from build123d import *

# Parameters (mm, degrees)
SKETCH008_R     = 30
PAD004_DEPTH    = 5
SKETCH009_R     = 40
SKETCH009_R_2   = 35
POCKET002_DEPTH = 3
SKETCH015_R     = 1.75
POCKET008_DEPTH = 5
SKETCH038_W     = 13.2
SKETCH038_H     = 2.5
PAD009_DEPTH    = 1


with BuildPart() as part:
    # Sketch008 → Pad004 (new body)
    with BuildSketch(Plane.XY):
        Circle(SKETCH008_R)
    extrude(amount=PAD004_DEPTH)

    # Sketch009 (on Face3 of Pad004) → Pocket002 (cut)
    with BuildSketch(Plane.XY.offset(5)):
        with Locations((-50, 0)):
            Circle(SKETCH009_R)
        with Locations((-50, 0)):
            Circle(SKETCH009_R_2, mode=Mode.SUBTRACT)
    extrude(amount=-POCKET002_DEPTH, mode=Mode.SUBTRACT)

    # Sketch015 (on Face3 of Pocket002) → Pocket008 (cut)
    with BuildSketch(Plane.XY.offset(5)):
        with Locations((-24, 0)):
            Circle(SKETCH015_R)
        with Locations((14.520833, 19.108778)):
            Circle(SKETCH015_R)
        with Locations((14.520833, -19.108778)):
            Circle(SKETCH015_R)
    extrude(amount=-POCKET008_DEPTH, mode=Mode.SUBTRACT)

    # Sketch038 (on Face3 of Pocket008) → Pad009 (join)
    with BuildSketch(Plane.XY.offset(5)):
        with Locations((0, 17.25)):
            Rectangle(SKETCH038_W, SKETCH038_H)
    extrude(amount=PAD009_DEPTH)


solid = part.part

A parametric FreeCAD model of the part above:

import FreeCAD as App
import Part
import Sketcher
Q = App.Units.Quantity

doc = App.newDocument("Part")
params = doc.addObject("Spreadsheet::Sheet", "Params")
for row, (alias, value) in enumerate([
    ("sketch1_diameter", "60 mm"),
    ("pad1_length", "5 mm"),
    ("sketch2_diameter", "80 mm"),
    ("sketch2_diameter2", "70 mm"),
    ("pocket1_length", "3 mm"),
    ("sketch3_diameter", "3.5 mm"),
    ("pocket2_length", "5 mm"),
    ("sketch4_width", "13.2 mm"),
    ("sketch4_height", "2.5 mm"),
    ("pad2_length", "1 mm"),
], start=1):
    params.set(f"A{row}", alias)
    params.set(f"B{row}", "=" + value)
    params.setAlias(f"B{row}", alias)

body = doc.addObject("PartDesign::Body", "Body")

# Sketch on XY plane
sketch1 = body.newObject("Sketcher::SketchObject", "Sketch")
sketch1.AttachmentSupport = (doc.getObject("XY_Plane"), [""])
sketch1.MapMode = "FlatFace"
sketch1.addGeometry(Part.Circle(App.Vector(0, 0, 0), App.Vector(0, 0, 1), 30), False)
sketch1.addConstraint([
    Sketcher.Constraint("Coincident", 0, 3, -1, 1),
    Sketcher.Constraint("Diameter", 0, Q("60 mm")),
])
sketch1.setExpression("Constraints[1]", "Params.sketch1_diameter")
pad1 = body.newObject("PartDesign::Pad", "Pad")
pad1.Profile = sketch1
pad1.setExpression("Length", "Params.pad1_length")

# Sketch on XY plane
sketch2 = body.newObject("Sketcher::SketchObject", "Sketch001")
sketch2.AttachmentSupport = (doc.getObject("XY_Plane"), [""])
sketch2.MapMode = "FlatFace"
sketch2.AttachmentOffset = App.Placement(App.Vector(0, 0, 5), App.Rotation())
sketch2.addGeometry([
    Part.Circle(App.Vector(-50, 0, 0), App.Vector(0, 0, 1), 40),
    Part.Circle(App.Vector(-50, 0, 0), App.Vector(0, 0, 1), 35),
], False)
sketch2.addConstraint([
    Sketcher.Constraint("Coincident", 1, 3, 0, 3),
    Sketcher.Constraint("PointOnObject", 0, 3, -1),
    Sketcher.Constraint("Diameter", 0, Q("80 mm")),
    Sketcher.Constraint("Diameter", 1, Q("70 mm")),
    Sketcher.Constraint("DistanceX", 0, 3, -1, 1, Q("50 mm")),
])
sketch2.setExpression("Constraints[2]", "Params.sketch2_diameter")
sketch2.setExpression("Constraints[3]", "Params.sketch2_diameter2")
pocket1 = body.newObject("PartDesign::Pocket", "Pocket")
pocket1.Profile = sketch2
pocket1.setExpression("Length", "Params.pocket1_length")

# Sketch on XY plane
sketch3 = body.newObject("Sketcher::SketchObject", "Sketch002")
sketch3.AttachmentSupport = (doc.getObject("XY_Plane"), [""])
sketch3.MapMode = "FlatFace"
sketch3.AttachmentOffset = App.Placement(App.Vector(0, 0, 5), App.Rotation())
sketch3.addGeometry([
    Part.Circle(App.Vector(-24, 0, 0), App.Vector(0, 0, 1), 1.8),
    Part.Circle(App.Vector(14.5, 19.1, 0), App.Vector(0, 0, 1), 1.8),
    Part.Circle(App.Vector(14.5, -19.1, 0), App.Vector(0, 0, 1), 1.8),
], False)
sketch3.addConstraint([
    Sketcher.Constraint("Equal", 0, 1),
    Sketcher.Constraint("Equal", 1, 2),
    Sketcher.Constraint("Symmetric", 1, 3, 2, 3, -1),
    Sketcher.Constraint("PointOnObject", 0, 3, -1),
    Sketcher.Constraint("Diameter", 0, Q("3.5 mm")),
    Sketcher.Constraint("DistanceX", 0, 3, -1, 1, Q("24 mm")),
    Sketcher.Constraint("DistanceY", -1, 1, 1, 3, Q("19.108778 mm")),
    Sketcher.Constraint("DistanceX", -1, 1, 1, 3, Q("14.520833 mm")),
])
sketch3.setExpression("Constraints[4]", "Params.sketch3_diameter")
pocket2 = body.newObject("PartDesign::Pocket", "Pocket001")
pocket2.Profile = sketch3
pocket2.setExpression("Length", "Params.pocket2_length")

# Sketch on XY plane
sketch4 = body.newObject("Sketcher::SketchObject", "Sketch003")
sketch4.AttachmentSupport = (doc.getObject("XY_Plane"), [""])
sketch4.MapMode = "FlatFace"
sketch4.AttachmentOffset = App.Placement(App.Vector(0, 0, 5), App.Rotation())
sketch4.addGeometry([
    Part.LineSegment(App.Vector(-6.6, 18.5, 0), App.Vector(-6.6, 16, 0)),
    Part.LineSegment(App.Vector(-6.6, 16, 0), App.Vector(6.6, 16, 0)),
    Part.LineSegment(App.Vector(6.6, 16, 0), App.Vector(6.6, 18.5, 0)),
    Part.LineSegment(App.Vector(6.6, 18.5, 0), App.Vector(-6.6, 18.5, 0)),
], False)
sketch4.addConstraint([
    Sketcher.Constraint("Coincident", 0, 2, 1, 1),
    Sketcher.Constraint("Coincident", 1, 2, 2, 1),
    Sketcher.Constraint("Coincident", 2, 2, 3, 1),
    Sketcher.Constraint("Coincident", 3, 2, 0, 1),
    Sketcher.Constraint("Vertical", 0),
    Sketcher.Constraint("Horizontal", 1),
    Sketcher.Constraint("Vertical", 2),
    Sketcher.Constraint("Horizontal", 3),
    Sketcher.Constraint("DistanceX", 1, 1, 1, 2, Q("13.2 mm")),
    Sketcher.Constraint("DistanceY", 0, 2, 0, 1, Q("2.5 mm")),
    Sketcher.Constraint("DistanceY", -1, 1, 0, 2, Q("16 mm")),
    Sketcher.Constraint("DistanceX", 0, 2, -1, 1, Q("6.6 mm")),
])
sketch4.setExpression("Constraints[8]", "Params.sketch4_width")
sketch4.setExpression("Constraints[9]", "Params.sketch4_height")
pad2 = body.newObject("PartDesign::Pad", "Pad001")
pad2.Profile = sketch4
pad2.setExpression("Length", "Params.pad2_length")

doc.recompute()
